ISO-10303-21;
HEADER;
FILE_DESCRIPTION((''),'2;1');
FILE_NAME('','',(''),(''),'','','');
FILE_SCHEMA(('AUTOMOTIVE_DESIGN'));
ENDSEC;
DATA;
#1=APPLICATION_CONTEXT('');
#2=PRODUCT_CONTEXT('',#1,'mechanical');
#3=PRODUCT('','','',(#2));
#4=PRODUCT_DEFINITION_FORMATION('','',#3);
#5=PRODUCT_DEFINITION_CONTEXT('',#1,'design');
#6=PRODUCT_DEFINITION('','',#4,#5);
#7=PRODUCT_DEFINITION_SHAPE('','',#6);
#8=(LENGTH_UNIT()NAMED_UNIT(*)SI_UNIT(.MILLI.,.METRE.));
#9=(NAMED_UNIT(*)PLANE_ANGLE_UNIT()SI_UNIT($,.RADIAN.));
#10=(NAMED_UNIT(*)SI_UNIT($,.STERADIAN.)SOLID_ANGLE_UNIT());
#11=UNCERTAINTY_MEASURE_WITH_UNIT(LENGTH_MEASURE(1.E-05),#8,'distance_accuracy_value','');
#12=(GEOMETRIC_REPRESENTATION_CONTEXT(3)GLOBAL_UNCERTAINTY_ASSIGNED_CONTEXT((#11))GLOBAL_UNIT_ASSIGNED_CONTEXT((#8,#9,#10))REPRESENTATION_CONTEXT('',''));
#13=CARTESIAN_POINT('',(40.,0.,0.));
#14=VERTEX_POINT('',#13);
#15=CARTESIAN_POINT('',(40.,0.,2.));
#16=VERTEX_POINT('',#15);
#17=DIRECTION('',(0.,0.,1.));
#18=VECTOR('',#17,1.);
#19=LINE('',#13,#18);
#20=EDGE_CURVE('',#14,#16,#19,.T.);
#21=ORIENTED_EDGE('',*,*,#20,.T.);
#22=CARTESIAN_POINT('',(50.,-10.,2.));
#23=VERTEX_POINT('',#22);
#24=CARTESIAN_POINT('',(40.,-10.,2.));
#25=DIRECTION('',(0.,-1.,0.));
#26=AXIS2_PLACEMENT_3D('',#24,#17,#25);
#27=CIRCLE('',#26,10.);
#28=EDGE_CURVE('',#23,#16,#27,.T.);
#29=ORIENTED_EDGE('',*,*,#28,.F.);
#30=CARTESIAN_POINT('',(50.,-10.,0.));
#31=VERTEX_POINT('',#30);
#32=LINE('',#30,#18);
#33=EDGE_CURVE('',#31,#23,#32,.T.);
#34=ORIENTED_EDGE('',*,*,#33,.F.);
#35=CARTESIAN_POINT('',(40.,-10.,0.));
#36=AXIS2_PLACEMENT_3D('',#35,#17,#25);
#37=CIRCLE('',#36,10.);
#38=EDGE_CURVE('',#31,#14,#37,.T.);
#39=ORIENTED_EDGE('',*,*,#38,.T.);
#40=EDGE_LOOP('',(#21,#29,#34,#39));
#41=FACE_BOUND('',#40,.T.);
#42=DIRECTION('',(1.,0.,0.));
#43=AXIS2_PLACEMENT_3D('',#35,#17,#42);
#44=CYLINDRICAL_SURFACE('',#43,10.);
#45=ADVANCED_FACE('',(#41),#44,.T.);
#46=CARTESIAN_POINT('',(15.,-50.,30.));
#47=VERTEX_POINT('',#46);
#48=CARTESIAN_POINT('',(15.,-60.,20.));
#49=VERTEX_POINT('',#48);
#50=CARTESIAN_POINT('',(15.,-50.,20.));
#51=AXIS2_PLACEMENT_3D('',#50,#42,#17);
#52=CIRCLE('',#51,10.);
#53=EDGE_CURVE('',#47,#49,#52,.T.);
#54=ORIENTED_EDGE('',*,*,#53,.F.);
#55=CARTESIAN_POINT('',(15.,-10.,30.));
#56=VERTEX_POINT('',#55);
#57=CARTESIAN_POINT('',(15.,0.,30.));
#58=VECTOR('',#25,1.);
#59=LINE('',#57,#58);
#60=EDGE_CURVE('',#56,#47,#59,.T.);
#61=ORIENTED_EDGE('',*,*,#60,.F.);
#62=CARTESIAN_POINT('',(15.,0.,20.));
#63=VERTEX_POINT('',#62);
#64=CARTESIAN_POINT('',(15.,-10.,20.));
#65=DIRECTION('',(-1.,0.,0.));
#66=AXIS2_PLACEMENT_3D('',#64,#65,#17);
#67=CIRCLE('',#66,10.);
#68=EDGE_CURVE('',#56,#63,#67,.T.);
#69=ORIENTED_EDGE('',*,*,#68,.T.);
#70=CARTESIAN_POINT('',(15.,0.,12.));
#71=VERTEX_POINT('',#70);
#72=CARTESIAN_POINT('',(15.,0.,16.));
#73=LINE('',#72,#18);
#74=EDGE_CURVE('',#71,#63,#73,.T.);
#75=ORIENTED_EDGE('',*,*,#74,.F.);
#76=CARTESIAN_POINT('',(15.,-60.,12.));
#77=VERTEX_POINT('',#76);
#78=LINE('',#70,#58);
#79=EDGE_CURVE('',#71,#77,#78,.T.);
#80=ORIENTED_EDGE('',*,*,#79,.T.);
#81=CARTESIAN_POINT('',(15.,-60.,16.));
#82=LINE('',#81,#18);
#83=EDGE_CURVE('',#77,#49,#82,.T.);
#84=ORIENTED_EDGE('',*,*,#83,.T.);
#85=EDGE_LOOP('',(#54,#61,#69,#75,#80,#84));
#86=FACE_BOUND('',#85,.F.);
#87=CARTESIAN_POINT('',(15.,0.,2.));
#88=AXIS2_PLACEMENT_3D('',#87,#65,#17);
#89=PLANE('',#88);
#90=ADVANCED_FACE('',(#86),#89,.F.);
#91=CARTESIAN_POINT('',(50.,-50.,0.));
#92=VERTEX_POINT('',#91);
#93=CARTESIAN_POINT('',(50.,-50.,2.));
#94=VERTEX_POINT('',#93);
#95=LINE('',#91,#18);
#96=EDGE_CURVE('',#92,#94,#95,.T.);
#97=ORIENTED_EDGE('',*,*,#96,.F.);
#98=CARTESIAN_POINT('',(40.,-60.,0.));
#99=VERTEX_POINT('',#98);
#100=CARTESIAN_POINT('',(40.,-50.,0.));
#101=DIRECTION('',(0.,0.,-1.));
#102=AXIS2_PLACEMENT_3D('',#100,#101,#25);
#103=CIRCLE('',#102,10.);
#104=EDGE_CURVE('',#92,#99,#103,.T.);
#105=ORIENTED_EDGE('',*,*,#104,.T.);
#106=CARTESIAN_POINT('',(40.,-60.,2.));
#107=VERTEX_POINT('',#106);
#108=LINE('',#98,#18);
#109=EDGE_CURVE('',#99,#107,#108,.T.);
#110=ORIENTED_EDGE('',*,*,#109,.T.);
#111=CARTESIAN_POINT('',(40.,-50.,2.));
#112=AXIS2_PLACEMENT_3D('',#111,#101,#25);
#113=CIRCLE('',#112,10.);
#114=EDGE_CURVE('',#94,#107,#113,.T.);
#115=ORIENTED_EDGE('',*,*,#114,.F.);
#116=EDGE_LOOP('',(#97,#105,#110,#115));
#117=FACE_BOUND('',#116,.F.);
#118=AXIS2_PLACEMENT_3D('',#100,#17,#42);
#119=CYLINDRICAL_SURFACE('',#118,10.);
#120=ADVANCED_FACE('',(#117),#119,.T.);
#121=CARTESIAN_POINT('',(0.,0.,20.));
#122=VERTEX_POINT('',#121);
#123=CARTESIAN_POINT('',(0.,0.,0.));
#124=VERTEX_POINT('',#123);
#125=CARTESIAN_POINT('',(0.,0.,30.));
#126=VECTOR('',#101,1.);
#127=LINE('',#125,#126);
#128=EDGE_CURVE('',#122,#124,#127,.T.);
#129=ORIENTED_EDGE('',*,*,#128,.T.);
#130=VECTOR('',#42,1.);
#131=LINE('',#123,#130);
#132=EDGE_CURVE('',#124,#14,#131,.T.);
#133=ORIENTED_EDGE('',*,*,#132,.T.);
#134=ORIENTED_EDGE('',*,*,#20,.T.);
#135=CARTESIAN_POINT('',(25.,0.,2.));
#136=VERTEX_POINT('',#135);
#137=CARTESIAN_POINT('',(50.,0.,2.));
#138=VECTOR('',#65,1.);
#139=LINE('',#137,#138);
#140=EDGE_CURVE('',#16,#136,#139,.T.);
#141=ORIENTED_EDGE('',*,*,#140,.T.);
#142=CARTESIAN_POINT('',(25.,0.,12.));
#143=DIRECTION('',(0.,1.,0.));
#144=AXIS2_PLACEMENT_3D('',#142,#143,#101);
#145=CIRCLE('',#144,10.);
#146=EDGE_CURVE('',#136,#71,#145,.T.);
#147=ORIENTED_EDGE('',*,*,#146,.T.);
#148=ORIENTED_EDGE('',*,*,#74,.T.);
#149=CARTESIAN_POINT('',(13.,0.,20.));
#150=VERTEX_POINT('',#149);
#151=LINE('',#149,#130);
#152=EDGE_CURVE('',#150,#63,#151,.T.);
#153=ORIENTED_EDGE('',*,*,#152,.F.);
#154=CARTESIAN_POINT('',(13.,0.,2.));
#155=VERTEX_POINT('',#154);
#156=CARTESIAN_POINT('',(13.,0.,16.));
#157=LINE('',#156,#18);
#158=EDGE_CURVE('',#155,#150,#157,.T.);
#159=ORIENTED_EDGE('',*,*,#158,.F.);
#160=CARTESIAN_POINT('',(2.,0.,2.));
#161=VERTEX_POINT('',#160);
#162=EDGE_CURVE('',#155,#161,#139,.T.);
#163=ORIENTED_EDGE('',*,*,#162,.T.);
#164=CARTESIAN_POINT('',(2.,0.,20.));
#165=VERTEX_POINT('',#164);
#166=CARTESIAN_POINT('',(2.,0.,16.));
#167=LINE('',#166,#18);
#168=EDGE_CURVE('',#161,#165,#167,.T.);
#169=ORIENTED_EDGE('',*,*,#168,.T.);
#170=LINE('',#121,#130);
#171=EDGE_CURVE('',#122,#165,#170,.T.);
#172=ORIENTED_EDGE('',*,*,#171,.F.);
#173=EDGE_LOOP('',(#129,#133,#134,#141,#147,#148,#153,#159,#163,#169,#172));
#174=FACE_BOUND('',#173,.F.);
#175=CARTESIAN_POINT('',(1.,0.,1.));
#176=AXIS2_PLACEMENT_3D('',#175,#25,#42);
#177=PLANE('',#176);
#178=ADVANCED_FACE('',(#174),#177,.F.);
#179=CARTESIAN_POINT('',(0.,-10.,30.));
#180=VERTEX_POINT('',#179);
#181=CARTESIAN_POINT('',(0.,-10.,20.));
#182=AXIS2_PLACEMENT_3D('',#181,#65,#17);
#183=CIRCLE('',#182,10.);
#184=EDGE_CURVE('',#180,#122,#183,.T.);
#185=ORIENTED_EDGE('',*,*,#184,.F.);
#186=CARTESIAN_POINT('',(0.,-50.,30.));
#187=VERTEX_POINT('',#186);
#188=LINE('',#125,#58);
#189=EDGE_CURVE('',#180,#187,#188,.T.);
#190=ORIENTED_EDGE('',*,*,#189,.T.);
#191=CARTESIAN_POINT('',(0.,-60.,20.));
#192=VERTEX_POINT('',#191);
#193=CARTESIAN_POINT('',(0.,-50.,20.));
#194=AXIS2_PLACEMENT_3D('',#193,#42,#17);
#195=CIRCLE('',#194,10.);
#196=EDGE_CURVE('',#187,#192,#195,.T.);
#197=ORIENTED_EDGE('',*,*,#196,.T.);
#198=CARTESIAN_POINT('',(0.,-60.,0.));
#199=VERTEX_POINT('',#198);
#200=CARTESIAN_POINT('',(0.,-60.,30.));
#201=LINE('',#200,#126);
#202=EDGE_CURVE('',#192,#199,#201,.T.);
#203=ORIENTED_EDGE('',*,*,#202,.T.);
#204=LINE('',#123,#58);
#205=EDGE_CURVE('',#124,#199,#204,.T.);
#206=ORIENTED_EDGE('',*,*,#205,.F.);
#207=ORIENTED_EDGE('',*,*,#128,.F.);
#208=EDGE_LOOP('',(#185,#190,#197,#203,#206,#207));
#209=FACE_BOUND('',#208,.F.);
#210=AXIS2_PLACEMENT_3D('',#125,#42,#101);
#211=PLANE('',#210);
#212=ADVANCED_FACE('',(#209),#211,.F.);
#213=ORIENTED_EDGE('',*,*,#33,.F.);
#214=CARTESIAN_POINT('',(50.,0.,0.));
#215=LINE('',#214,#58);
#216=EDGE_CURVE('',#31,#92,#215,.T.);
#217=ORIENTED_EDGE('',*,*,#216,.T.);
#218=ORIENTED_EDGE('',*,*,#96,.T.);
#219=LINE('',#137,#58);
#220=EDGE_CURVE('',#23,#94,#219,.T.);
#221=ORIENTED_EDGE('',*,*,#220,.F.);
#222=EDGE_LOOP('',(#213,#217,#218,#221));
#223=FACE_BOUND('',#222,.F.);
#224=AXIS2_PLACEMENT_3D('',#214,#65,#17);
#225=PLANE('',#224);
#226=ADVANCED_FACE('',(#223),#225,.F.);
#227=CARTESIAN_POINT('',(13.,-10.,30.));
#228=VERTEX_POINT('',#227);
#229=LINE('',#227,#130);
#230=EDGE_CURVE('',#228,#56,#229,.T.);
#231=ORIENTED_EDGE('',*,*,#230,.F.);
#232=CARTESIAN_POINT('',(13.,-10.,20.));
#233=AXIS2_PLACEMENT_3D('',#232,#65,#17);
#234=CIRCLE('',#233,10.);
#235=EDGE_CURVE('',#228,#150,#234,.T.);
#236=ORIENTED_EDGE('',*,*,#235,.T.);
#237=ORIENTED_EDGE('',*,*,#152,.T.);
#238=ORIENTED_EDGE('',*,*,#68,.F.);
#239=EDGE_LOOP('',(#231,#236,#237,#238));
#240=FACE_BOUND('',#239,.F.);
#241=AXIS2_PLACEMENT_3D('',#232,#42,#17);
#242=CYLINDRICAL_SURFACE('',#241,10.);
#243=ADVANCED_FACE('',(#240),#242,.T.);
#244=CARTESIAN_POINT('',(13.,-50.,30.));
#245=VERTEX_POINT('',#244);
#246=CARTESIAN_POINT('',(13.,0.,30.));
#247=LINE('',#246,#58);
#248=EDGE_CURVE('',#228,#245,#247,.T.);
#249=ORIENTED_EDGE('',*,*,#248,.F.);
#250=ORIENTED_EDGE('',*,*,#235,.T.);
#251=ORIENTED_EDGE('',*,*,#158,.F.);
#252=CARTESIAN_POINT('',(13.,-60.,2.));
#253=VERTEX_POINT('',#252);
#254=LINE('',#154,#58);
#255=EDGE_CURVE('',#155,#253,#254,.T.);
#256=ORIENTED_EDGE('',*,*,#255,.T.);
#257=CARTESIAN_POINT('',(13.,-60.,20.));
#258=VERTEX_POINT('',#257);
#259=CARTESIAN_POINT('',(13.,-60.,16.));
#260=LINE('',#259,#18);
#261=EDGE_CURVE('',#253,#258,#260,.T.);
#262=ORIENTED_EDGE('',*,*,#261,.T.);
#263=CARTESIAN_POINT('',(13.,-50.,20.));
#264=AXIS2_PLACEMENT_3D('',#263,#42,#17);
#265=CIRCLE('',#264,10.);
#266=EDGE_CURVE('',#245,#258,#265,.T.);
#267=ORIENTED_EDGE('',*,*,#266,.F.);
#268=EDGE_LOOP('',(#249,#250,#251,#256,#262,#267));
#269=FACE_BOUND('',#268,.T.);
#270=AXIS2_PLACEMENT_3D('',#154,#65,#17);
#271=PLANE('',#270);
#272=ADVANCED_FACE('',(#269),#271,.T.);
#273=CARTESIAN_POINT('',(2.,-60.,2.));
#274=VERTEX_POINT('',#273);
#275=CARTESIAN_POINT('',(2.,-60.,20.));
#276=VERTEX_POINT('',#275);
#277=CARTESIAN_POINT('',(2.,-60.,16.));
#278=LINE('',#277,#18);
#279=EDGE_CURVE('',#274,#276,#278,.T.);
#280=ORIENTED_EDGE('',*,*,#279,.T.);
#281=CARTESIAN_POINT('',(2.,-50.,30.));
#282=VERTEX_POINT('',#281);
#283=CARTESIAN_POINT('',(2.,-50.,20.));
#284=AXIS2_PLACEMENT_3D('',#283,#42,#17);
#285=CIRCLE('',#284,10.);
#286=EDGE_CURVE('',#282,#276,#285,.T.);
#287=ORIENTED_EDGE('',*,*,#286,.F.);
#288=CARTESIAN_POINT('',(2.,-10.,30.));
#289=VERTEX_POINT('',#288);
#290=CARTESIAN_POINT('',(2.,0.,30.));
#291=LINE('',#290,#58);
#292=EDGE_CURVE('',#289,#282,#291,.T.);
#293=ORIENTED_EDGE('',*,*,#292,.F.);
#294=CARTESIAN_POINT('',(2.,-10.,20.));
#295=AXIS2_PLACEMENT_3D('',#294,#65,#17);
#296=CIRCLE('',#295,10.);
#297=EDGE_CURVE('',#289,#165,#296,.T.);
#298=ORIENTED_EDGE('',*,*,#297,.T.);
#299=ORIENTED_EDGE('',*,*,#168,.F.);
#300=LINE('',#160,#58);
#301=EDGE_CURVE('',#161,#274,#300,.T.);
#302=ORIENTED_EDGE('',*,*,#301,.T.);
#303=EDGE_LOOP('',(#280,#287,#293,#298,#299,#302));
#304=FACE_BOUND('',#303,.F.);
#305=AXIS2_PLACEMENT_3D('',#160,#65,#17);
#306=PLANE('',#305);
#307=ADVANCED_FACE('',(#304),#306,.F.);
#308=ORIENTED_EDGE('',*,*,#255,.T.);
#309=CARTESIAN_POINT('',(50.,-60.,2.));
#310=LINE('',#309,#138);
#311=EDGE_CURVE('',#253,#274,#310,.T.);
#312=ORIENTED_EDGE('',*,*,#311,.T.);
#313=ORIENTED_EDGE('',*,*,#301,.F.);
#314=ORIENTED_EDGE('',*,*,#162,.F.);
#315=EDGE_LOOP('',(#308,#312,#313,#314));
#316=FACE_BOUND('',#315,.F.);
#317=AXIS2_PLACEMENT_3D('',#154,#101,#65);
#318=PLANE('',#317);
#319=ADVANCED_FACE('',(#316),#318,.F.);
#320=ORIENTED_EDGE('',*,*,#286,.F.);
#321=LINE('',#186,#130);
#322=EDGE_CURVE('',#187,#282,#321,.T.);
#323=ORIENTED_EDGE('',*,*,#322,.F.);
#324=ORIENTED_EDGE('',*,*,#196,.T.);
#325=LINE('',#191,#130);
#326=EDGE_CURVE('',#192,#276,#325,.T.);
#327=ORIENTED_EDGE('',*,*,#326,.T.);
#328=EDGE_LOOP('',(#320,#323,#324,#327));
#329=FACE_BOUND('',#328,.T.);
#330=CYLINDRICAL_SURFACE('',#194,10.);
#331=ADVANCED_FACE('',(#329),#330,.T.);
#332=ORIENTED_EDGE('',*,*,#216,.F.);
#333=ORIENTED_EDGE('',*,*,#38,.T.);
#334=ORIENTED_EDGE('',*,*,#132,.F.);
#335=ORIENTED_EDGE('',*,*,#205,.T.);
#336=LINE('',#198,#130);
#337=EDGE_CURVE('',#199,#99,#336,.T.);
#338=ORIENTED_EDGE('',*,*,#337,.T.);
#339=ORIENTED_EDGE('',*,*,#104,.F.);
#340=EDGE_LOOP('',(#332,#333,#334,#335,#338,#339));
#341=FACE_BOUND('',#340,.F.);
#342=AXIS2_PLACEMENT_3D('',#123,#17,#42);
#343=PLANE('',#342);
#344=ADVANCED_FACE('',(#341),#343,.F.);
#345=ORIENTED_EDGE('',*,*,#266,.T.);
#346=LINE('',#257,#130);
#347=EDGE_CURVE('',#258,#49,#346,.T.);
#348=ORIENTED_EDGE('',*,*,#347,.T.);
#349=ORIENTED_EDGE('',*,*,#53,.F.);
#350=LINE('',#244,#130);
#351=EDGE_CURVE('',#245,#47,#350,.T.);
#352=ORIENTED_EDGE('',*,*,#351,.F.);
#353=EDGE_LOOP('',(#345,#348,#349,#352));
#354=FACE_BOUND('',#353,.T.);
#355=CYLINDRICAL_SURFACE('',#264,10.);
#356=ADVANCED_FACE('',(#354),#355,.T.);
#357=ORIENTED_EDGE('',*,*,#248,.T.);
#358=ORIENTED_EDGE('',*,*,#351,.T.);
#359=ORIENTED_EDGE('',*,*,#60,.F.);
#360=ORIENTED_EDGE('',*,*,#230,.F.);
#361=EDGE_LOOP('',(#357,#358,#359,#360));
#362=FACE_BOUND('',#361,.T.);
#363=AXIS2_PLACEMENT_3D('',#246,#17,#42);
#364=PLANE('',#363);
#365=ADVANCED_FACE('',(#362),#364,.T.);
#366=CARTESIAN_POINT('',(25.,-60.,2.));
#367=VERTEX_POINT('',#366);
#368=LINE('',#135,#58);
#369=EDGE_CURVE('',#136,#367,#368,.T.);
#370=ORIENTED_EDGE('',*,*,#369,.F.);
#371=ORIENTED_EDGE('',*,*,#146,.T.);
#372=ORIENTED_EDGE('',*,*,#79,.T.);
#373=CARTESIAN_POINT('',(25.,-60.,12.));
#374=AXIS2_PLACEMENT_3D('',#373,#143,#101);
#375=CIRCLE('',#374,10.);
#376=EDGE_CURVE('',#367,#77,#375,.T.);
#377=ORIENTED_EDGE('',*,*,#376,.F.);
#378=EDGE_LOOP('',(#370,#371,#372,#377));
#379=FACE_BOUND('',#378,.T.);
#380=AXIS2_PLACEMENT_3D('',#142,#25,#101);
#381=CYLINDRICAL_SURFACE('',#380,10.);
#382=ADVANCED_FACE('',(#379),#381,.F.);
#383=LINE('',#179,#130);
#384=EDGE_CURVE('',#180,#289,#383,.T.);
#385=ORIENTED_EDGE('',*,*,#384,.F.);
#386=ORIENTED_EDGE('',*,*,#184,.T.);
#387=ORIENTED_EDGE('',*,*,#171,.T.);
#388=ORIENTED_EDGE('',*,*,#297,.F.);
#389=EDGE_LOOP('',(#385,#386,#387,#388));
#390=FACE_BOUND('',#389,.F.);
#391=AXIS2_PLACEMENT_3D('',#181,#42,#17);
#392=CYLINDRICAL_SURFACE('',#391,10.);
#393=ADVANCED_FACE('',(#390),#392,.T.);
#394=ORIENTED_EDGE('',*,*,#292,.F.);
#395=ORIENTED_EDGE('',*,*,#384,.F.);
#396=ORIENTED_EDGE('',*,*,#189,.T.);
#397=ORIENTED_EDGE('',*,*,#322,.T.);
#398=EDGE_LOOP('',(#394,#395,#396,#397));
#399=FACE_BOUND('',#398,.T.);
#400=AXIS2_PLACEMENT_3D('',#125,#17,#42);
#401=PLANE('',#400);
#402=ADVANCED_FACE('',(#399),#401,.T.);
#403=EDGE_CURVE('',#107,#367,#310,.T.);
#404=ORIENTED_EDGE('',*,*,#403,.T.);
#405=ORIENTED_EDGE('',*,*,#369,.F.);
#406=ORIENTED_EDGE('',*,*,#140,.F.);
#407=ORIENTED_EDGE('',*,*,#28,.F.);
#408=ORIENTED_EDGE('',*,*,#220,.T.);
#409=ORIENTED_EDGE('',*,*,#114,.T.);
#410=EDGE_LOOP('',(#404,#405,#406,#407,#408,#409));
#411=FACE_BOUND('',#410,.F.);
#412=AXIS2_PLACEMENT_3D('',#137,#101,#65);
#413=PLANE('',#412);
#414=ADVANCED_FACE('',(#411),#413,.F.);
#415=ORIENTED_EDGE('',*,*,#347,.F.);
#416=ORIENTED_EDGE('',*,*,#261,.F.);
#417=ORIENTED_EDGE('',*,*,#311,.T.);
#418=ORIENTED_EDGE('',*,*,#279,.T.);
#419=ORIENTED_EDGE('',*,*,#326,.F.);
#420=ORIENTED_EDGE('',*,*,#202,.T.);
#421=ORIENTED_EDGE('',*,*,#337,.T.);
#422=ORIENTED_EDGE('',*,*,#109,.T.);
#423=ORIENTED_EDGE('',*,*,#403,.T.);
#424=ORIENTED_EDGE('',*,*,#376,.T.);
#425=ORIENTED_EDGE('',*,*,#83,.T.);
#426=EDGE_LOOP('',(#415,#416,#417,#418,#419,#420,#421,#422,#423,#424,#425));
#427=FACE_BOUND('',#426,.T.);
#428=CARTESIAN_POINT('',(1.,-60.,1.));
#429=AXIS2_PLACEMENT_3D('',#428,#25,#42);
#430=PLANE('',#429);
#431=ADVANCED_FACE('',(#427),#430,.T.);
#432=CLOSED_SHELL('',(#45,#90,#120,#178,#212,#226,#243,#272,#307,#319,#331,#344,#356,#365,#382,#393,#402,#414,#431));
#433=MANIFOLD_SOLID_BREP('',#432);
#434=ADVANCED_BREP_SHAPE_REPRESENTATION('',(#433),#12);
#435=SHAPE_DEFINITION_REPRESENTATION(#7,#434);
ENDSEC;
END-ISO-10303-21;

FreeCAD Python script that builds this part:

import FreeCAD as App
import Part
import Sketcher

V = App.Vector


def edges_at(feature, points):
    """Names of the edges that pass closest to the given points."""
    edges = feature.Shape.Edges
    near = lambda p: min(range(len(edges)), key=lambda i: edges[i].distToShape(Part.Vertex(*p))[0])
    return sorted({f"Edge{near(p) + 1}" for p in points})


def add_polygon(sketch, points):
    """Adds a closed chain of lines whose ends are joined by coincident constraints."""
    first, n = sketch.GeometryCount, len(points)
    for a, b in zip(points, points[1:] + points[:1]):
        sketch.addGeometry(Part.LineSegment(App.Vector(*a, 0), App.Vector(*b, 0)), False)
    for i in range(n):
        sketch.addConstraint(Sketcher.Constraint("Coincident", first + i, 2, first + (i + 1) % n, 1))

doc = App.newDocument("Part")
body = doc.addObject("PartDesign::Body", "Body")

# Sketch on XZ plane
sketch1 = body.newObject("Sketcher::SketchObject", "Sketch")
sketch1.AttachmentSupport = (doc.getObject("XZ_Plane"), [""])
sketch1.MapMode = "FlatFace"
add_polygon(sketch1, [(0, 0), (50, 0), (50, 2), (15, 2), (15, 30), (13, 30), (13, 2), (2, 2), (2, 30), (0, 30)])  # lines 0-9
sketch1.addConstraint(Sketcher.Constraint("Horizontal", 0))
sketch1.addConstraint(Sketcher.Constraint("Vertical", 1))
sketch1.addConstraint(Sketcher.Constraint("Horizontal", 2))
sketch1.addConstraint(Sketcher.Constraint("Vertical", 3))
sketch1.addConstraint(Sketcher.Constraint("Horizontal", 4))
sketch1.addConstraint(Sketcher.Constraint("Vertical", 5))
sketch1.addConstraint(Sketcher.Constraint("Horizontal", 6))
sketch1.addConstraint(Sketcher.Constraint("Vertical", 7))
sketch1.addConstraint(Sketcher.Constraint("Horizontal", 8))
sketch1.addConstraint(Sketcher.Constraint("Vertical", 9))
sketch1.addConstraint(Sketcher.Constraint("Coincident", 9, 2, -1, 1))
sketch1.addConstraint(Sketcher.Constraint("Horizontal", 2, 2, 5, 2))
sketch1.addConstraint(Sketcher.Constraint("Horizontal", 4, 2, 7, 2))
sketch1.addConstraint(Sketcher.Constraint("Equal", 4, 8))
sketch1.addConstraint(Sketcher.Constraint("Equal", 8, 1))
sketch1.addConstraint(Sketcher.Constraint("DistanceX", 0, 1, 0, 2, 50.0))
sketch1.addConstraint(Sketcher.Constraint("DistanceX", 2, 2, 2, 1, 35.0))
sketch1.addConstraint(Sketcher.Constraint("DistanceX", 4, 2, 4, 1, 2.0))
sketch1.addConstraint(Sketcher.Constraint("DistanceY", 3, 1, 3, 2, 28.0))
pad1 = body.newObject("PartDesign::Pad", "Pad")
pad1.Profile = sketch1
pad1.Length = 60
doc.recompute()

fillet = body.newObject("PartDesign::Fillet", "Fillet")
fillet.Base = (pad1, edges_at(pad1, [
    (14, -60, 30),
    (1, -60, 30),
    (14, 0, 30),
    (1, 0, 30),
    (15, -30, 2),
    (50, 0, 1),
    (50, -60, 1),
]))
fillet.Radius = 10

doc.recompute()
